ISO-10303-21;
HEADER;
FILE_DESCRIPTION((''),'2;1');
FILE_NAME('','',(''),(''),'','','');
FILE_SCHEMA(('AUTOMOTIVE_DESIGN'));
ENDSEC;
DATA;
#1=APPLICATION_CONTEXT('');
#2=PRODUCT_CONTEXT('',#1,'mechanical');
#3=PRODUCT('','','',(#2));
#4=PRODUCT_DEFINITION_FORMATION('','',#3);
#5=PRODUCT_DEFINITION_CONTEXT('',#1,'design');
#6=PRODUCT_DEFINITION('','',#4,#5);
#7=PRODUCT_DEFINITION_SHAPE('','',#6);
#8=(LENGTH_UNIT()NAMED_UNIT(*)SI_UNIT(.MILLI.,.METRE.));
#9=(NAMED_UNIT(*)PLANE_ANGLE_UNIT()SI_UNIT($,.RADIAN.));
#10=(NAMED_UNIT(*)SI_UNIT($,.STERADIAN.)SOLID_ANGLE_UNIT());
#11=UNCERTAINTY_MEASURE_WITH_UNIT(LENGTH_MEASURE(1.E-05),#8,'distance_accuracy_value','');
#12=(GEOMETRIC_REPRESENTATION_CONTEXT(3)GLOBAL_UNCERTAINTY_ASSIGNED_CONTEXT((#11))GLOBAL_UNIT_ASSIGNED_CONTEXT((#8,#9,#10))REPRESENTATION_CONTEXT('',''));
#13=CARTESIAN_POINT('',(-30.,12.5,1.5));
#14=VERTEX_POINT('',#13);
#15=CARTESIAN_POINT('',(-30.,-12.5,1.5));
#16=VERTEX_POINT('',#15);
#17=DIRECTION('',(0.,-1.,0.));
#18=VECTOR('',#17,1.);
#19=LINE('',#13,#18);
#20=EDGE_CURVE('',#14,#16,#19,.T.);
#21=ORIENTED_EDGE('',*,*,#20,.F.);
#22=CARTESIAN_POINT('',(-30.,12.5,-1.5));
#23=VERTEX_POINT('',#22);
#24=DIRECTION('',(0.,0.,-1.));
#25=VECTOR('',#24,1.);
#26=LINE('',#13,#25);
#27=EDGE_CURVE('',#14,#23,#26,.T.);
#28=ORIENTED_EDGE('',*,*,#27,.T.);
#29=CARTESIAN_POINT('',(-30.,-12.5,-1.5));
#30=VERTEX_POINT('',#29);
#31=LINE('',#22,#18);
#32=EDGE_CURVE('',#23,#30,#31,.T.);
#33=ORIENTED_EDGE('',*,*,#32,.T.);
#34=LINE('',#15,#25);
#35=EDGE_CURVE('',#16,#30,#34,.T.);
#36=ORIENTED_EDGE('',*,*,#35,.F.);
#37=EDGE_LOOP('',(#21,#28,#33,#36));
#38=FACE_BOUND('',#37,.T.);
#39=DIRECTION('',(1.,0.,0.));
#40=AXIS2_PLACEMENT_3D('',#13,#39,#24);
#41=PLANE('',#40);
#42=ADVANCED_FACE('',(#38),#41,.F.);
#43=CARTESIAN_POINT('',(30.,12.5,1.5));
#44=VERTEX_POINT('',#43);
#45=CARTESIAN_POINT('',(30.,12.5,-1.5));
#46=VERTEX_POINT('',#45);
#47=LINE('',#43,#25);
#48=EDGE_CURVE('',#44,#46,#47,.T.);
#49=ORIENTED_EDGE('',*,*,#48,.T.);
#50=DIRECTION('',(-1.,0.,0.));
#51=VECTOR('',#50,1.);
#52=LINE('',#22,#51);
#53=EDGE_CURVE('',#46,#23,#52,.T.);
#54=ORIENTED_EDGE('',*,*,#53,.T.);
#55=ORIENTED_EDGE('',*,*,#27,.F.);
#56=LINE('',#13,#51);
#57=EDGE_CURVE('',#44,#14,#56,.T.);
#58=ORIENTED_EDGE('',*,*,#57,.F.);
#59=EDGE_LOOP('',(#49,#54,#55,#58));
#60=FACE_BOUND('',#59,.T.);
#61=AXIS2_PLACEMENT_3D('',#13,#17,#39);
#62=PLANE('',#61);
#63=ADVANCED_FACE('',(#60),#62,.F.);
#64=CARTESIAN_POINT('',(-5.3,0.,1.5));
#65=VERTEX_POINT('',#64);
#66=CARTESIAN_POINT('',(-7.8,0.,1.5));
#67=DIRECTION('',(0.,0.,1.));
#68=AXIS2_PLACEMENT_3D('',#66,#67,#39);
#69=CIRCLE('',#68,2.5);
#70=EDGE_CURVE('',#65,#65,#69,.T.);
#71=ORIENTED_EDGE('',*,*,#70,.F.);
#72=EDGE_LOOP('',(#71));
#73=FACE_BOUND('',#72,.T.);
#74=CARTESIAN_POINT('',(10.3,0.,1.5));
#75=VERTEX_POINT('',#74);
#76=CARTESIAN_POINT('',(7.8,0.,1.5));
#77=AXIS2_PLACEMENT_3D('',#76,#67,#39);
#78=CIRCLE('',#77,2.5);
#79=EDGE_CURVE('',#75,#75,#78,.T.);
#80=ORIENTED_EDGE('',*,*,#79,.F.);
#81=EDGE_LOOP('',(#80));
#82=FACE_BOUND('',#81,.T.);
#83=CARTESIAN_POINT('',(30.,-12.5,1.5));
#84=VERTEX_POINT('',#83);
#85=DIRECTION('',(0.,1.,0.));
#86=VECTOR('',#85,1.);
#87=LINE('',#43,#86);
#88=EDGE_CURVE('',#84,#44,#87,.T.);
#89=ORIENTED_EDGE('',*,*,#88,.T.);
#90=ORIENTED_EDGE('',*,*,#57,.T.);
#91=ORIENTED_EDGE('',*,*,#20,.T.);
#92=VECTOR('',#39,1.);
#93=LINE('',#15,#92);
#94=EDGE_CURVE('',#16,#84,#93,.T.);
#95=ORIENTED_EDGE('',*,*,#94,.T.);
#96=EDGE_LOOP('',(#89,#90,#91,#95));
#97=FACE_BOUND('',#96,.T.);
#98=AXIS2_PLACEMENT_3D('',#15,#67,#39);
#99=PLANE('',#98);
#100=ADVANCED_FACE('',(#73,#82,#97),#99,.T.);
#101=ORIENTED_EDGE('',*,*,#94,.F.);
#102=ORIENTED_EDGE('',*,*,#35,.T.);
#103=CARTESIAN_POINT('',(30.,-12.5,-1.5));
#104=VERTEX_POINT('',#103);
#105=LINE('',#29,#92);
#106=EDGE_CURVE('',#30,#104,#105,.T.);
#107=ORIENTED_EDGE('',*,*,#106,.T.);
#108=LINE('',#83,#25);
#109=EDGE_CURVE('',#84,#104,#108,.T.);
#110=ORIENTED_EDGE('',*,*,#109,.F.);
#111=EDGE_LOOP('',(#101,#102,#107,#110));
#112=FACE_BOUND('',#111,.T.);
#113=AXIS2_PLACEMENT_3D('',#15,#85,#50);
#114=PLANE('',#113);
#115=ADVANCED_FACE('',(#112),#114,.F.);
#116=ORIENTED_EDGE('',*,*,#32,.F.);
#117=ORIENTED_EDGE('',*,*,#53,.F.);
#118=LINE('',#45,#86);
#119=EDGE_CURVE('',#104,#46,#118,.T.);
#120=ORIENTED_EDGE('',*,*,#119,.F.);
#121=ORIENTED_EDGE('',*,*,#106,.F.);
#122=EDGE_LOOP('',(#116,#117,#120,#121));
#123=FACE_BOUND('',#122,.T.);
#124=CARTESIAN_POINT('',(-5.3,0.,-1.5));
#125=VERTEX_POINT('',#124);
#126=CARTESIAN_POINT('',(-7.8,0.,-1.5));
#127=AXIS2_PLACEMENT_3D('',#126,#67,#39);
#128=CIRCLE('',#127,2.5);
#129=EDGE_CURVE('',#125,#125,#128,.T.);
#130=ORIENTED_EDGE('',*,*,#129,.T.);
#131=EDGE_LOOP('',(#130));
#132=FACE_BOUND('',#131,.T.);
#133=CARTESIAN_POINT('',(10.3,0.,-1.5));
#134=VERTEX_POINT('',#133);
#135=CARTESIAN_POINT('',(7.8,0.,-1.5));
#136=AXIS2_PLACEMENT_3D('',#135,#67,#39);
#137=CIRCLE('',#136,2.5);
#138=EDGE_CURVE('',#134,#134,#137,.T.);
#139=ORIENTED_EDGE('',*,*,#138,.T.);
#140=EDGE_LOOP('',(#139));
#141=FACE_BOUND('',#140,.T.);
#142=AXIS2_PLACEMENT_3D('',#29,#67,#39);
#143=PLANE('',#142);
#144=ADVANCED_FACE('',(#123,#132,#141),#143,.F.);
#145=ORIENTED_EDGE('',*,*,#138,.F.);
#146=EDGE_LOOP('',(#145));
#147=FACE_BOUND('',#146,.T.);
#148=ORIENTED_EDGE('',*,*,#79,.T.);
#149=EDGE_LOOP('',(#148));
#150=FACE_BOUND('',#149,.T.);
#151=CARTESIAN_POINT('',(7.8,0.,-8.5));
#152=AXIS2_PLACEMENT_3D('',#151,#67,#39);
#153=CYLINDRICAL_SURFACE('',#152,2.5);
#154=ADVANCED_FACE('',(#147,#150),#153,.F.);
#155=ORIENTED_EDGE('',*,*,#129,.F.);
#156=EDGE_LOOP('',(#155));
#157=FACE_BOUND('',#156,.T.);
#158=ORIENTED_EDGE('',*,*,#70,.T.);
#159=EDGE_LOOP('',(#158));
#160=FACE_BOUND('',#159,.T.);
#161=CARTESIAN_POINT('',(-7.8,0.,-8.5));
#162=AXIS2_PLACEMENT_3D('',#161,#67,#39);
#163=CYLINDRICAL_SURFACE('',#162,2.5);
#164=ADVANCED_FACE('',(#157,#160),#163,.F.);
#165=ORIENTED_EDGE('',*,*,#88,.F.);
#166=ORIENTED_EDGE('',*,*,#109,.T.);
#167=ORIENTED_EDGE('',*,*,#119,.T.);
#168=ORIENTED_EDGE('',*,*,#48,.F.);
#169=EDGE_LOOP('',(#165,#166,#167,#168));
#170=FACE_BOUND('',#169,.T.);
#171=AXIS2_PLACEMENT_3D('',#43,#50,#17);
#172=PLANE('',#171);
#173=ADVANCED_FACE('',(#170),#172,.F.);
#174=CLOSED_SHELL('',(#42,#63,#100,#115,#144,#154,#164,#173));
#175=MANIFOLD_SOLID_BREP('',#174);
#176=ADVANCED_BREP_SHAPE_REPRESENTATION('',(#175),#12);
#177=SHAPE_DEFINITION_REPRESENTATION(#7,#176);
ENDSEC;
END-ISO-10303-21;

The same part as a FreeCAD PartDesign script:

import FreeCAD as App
import Part
import Sketcher
Q = App.Units.Quantity

doc = App.newDocument("Part")
body = doc.addObject("PartDesign::Body", "Body")

sketch1 = doc.addObject("Sketcher::SketchObject", "Sketch")
body.addObject(sketch1)
sketch1.AttachmentSupport = (doc.XY_Plane, [""])
sketch1.MapMode = "FlatFace"
sketch1.addGeometry(Part.LineSegment(App.Vector(-30, 12.5, 0), App.Vector(-30, -12.5, 0)), False)
sketch1.addGeometry(Part.LineSegment(App.Vector(-30, -12.5, 0), App.Vector(30, -12.5, 0)), False)
sketch1.addGeometry(Part.LineSegment(App.Vector(30, -12.5, 0), App.Vector(30, 12.5, 0)), False)
sketch1.addGeometry(Part.LineSegment(App.Vector(30, 12.5, 0), App.Vector(-30, 12.5, 0)), False)
sketch1.addConstraint(Sketcher.Constraint("Coincident", 0, 2, 1, 1))
sketch1.addConstraint(Sketcher.Constraint("Coincident", 1, 2, 2, 1))
sketch1.addConstraint(Sketcher.Constraint("Coincident", 2, 2, 3, 1))
sketch1.addConstraint(Sketcher.Constraint("Coincident", 3, 2, 0, 1))
sketch1.addConstraint(Sketcher.Constraint("Vertical", 0))
sketch1.addConstraint(Sketcher.Constraint("Horizontal", 1))
sketch1.addConstraint(Sketcher.Constraint("Vertical", 2))
sketch1.addConstraint(Sketcher.Constraint("Horizontal", 3))
sketch1.addConstraint(Sketcher.Constraint("Symmetric", 0, 2, 2, 2, -1, 1))
sketch1.addConstraint(Sketcher.Constraint("DistanceX", 1, 1, 1, 2, Q("60 mm")))
sketch1.addConstraint(Sketcher.Constraint("DistanceY", 0, 2, 0, 1, Q("25 mm")))
pad1 = doc.addObject("PartDesign::Pad", "Pad")
body.addObject(pad1)
pad1.Profile = sketch1
pad1.Length = 3
pad1.Midplane = True

sketch2 = doc.addObject("Sketcher::SketchObject", "Sketch001")
body.addObject(sketch2)
sketch2.AttachmentSupport = (doc.XY_Plane, [""])
sketch2.MapMode = "FlatFace"
sketch2.AttachmentOffset = App.Placement(App.Vector(0, 0, 1.5), App.Rotation())
sketch2.addGeometry(Part.Circle(App.Vector(-7.8, 0, 0), App.Vector(0, 0, 1), 2.5), False)
sketch2.addGeometry(Part.Circle(App.Vector(7.8, 0, 0), App.Vector(0, 0, 1), 2.5), False)
sketch2.addConstraint(Sketcher.Constraint("Equal", 0, 1))
sketch2.addConstraint(Sketcher.Constraint("Symmetric", 0, 3, 1, 3, -1, 1))
sketch2.addConstraint(Sketcher.Constraint("PointOnObject", 0, 3, -1))
sketch2.addConstraint(Sketcher.Constraint("Diameter", 0, Q("5 mm")))
sketch2.addConstraint(Sketcher.Constraint("DistanceX", 0, 3, -1, 1, Q("7.8 mm")))
pocket1 = doc.addObject("PartDesign::Pocket", "Pocket")
body.addObject(pocket1)
pocket1.Profile = sketch2
pocket1.Length = 10

doc.recompute()
